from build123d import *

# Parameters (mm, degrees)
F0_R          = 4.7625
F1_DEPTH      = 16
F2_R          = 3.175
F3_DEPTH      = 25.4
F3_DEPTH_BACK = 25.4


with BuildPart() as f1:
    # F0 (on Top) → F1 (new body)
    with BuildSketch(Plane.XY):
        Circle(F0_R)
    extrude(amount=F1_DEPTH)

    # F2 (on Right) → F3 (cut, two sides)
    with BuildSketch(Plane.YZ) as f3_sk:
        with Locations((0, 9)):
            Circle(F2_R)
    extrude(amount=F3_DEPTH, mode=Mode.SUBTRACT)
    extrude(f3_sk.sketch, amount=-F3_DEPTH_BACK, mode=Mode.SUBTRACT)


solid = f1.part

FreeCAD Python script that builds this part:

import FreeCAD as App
import Part
import Sketcher
Q = App.Units.Quantity

doc = App.newDocument("Part")
body = doc.addObject("PartDesign::Body", "Body")

sketch1 = body.newObject("Sketcher::SketchObject", "Sketch")
sketch1.AttachmentSupport = (doc.getObject("XY_Plane"), [""])
sketch1.MapMode = "FlatFace"
sketch1.addGeometry(Part.Circle(App.Vector(0, 0, 0), App.Vector(0, 0, 1), 4.8), False)
sketch1.addConstraint([
    Sketcher.Constraint("Coincident", 0, 3, -1, 1),
    Sketcher.Constraint("Diameter", 0, Q("0.375 in")),
])
pad1 = body.newObject("PartDesign::Pad", "Pad")
pad1.Profile = sketch1
pad1.Length = 16

sketch2 = body.newObject("Sketcher::SketchObject", "Sketch001")
sketch2.AttachmentSupport = (doc.getObject("YZ_Plane"), [""])
sketch2.MapMode = "FlatFace"
sketch2.addGeometry(Part.Circle(App.Vector(0, 9, 0), App.Vector(0, 0, 1), 3.2), False)
sketch2.addConstraint([
    Sketcher.Constraint("PointOnObject", 0, 3, -2),
    Sketcher.Constraint("Diameter", 0, Q("0.25 in")),
    Sketcher.Constraint("DistanceY", -1, 1, 0, 3, Q("9 mm")),
])
pocket1 = body.newObject("PartDesign::Pocket", "Pocket")
pocket1.Profile = sketch2
pocket1.Type = "ThroughAll"
pocket1.Midplane = True

doc.recompute()
